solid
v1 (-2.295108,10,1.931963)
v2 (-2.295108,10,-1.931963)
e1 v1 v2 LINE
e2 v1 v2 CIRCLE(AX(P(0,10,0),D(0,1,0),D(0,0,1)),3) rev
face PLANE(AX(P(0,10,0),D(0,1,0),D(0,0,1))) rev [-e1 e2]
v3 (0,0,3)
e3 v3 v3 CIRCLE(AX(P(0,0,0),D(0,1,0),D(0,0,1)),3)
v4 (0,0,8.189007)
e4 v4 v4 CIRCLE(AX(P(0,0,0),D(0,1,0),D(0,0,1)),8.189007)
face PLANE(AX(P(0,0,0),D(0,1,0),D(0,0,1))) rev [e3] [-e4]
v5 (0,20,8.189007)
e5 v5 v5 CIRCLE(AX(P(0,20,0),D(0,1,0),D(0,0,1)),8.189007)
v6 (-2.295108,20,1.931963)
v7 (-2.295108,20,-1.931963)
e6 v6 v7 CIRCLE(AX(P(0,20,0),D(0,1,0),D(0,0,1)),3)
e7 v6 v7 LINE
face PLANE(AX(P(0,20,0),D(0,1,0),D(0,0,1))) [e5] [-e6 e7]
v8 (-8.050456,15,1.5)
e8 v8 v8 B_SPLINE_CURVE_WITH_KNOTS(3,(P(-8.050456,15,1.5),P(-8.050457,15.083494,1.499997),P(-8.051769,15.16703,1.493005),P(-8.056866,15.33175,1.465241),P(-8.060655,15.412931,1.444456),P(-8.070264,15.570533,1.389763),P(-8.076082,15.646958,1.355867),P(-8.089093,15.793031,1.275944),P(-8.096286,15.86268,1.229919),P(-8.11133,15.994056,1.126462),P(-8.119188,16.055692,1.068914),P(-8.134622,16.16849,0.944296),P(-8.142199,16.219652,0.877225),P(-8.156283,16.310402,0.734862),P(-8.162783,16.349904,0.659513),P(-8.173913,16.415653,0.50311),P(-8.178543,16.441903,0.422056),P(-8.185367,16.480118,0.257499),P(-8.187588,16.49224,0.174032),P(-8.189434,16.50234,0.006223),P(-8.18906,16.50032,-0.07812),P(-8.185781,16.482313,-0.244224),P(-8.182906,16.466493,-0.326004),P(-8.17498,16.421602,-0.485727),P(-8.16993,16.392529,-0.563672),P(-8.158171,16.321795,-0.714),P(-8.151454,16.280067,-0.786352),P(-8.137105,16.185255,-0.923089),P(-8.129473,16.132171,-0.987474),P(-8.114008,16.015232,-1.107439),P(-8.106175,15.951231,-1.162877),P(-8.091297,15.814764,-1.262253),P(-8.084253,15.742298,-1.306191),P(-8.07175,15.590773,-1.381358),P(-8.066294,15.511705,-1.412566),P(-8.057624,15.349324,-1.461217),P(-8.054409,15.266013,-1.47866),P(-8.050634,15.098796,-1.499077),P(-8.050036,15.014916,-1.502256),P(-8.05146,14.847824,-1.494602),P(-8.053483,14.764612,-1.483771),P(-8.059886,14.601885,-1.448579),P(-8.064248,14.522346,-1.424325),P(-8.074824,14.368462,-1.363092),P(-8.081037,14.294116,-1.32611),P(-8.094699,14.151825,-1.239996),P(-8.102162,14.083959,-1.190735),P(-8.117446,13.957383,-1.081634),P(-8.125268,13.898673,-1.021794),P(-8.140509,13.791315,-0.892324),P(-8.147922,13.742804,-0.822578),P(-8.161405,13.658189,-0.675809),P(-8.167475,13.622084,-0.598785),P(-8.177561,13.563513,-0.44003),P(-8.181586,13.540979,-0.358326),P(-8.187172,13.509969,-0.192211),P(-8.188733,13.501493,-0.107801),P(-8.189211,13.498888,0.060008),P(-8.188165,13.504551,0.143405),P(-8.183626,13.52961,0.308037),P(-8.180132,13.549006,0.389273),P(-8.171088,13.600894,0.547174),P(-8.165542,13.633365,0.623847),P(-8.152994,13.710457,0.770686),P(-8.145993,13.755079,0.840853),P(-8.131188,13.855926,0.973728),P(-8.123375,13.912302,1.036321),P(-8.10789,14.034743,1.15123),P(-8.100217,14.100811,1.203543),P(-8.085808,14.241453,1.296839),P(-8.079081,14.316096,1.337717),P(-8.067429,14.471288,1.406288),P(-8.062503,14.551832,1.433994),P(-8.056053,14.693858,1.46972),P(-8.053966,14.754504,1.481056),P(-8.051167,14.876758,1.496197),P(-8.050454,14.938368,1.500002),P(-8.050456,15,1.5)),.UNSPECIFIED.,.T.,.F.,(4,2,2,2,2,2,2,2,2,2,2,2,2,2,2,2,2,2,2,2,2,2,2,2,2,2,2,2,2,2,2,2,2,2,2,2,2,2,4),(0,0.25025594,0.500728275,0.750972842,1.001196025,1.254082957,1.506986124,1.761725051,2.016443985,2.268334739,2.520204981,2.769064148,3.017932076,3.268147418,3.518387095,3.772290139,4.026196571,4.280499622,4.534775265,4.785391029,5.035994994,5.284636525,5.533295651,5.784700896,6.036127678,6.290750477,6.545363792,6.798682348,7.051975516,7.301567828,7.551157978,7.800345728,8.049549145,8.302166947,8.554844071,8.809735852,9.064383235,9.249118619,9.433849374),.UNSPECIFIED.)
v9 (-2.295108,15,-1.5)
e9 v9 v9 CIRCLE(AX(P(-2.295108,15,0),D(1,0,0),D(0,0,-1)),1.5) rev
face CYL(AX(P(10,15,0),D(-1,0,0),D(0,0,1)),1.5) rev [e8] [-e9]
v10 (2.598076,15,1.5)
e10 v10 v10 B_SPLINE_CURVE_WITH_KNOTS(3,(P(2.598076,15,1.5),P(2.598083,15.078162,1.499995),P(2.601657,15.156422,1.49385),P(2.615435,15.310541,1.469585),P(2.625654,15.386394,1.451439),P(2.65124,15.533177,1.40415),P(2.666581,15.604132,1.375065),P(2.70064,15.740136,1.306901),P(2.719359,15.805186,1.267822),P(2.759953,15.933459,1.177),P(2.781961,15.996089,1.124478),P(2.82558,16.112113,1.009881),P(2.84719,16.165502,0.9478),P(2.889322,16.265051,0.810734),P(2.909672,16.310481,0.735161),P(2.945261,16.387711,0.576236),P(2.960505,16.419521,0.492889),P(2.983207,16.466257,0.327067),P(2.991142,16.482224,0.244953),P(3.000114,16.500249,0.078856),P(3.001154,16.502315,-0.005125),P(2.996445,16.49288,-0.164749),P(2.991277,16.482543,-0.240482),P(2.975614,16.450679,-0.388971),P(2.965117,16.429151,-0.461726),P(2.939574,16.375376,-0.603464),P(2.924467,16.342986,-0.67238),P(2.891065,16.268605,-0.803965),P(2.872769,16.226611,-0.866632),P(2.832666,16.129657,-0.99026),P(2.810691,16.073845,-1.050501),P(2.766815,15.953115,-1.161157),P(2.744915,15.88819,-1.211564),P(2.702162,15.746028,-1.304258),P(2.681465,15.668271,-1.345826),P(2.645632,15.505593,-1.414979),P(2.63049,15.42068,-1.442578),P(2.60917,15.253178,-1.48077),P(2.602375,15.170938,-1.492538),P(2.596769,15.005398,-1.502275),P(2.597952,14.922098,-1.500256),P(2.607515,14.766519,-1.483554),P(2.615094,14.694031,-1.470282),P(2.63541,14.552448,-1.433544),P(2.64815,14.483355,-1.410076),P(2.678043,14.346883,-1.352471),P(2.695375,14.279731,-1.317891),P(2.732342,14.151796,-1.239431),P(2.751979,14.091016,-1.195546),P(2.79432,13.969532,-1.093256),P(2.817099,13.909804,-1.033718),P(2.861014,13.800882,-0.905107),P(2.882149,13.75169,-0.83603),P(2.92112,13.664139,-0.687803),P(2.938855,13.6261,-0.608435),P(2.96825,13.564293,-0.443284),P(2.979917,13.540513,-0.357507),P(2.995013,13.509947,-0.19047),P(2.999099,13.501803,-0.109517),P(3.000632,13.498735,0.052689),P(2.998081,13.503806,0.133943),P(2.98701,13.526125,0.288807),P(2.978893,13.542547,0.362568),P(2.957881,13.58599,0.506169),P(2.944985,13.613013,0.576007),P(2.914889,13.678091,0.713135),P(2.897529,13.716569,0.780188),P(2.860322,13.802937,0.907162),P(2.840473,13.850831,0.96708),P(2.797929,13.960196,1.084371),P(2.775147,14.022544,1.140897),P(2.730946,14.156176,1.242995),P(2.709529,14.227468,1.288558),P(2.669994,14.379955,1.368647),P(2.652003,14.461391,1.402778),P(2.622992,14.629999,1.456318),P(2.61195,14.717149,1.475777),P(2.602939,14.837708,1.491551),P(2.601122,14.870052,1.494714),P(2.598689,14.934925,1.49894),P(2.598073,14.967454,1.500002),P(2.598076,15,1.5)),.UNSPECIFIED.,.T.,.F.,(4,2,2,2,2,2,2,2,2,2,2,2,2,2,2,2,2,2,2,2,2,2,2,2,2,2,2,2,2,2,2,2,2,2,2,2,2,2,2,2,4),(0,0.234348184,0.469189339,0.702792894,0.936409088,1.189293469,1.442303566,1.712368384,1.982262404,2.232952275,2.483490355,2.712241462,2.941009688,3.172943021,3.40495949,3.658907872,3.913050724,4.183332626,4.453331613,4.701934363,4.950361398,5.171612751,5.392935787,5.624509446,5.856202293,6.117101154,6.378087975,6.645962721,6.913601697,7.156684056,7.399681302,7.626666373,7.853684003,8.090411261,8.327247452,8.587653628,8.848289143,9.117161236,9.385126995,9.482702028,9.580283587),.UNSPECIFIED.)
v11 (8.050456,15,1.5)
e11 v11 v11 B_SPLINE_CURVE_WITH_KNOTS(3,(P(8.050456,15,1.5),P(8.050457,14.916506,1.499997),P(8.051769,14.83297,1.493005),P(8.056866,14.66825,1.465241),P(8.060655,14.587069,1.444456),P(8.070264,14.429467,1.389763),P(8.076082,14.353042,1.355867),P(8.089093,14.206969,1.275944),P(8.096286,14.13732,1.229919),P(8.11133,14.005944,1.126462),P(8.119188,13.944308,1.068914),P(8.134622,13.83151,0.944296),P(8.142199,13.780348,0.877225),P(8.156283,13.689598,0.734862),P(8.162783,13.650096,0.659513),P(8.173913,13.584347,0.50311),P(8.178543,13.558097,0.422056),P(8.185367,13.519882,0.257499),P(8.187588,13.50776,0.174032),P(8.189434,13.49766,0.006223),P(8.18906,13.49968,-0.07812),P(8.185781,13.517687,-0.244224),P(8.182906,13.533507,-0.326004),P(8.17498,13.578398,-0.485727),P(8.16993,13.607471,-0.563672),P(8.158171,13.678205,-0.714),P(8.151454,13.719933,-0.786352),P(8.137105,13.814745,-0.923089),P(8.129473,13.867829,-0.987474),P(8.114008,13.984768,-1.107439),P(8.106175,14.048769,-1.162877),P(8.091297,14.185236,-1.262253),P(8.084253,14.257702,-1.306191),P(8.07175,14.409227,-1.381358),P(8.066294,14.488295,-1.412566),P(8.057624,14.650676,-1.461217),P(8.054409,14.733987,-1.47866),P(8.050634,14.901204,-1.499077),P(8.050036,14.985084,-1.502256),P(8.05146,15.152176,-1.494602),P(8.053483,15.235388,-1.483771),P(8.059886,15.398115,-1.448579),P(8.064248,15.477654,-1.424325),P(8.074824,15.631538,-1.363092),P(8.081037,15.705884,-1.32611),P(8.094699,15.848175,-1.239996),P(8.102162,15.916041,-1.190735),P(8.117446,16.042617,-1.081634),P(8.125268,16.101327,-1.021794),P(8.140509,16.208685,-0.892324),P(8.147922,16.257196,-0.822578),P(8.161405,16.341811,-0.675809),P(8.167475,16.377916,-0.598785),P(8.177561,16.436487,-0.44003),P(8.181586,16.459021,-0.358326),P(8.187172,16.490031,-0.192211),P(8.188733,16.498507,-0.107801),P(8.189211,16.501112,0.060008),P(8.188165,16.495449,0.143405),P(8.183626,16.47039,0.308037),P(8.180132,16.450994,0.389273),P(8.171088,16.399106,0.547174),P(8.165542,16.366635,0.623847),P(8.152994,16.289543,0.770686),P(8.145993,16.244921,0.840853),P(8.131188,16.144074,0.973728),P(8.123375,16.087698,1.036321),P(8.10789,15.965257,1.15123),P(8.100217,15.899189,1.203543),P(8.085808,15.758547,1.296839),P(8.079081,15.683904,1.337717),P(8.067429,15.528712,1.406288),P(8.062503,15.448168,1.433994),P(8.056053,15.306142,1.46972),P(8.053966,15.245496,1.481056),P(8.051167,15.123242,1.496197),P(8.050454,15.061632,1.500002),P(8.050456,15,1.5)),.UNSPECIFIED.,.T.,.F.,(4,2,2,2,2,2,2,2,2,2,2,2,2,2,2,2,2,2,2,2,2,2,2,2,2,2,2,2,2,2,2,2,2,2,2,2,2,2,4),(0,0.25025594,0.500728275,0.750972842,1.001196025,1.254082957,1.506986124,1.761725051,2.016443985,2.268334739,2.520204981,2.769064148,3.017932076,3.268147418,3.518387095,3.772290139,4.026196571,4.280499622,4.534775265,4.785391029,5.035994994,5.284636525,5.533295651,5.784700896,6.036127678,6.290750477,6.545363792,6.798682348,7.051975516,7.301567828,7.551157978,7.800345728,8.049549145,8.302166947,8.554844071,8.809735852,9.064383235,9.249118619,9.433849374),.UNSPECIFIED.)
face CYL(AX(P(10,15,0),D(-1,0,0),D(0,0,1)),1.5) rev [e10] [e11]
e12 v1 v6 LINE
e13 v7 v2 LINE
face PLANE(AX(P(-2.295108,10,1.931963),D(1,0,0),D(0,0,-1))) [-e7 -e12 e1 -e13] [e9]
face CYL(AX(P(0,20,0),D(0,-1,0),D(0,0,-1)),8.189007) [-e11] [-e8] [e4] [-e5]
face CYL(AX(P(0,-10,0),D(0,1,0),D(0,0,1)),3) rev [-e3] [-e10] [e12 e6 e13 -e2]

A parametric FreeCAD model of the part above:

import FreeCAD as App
import Part
import Sketcher

V = App.Vector
Q = App.Units.Quantity


def add_polygon(sketch, points):
    """Adds a closed chain of lines whose ends are joined by coincident constraints."""
    first, n = sketch.GeometryCount, len(points)
    for a, b in zip(points, points[1:] + points[:1]):
        sketch.addGeometry(Part.LineSegment(App.Vector(*a, 0), App.Vector(*b, 0)), False)
    for i in range(n):
        sketch.addConstraint(Sketcher.Constraint("Coincident", first + i, 2, first + (i + 1) % n, 1))

doc = App.newDocument("Part")
body = doc.addObject("PartDesign::Body", "Body")

# Sketch on XZ plane
sketch1 = body.newObject("Sketcher::SketchObject", "Sketch")
sketch1.AttachmentSupport = (doc.getObject("XZ_Plane"), [""])
sketch1.MapMode = "FlatFace"
sketch1.addGeometry(Part.Circle(V(0, 0, 0), V(0, 0, 1), 8.189007), False)
sketch1.addConstraint(Sketcher.Constraint("Coincident", 0, 3, -1, 1))
sketch1.addConstraint(Sketcher.Constraint("Diameter", 0, Q("16.378014 mm")))
pad1 = body.newObject("PartDesign::Pad", "Pad")
pad1.Profile = sketch1
pad1.Length = 20
pad1.Reversed = True

# Sketch on XZ plane
sketch2 = body.newObject("Sketcher::SketchObject", "Sketch001")
sketch2.AttachmentSupport = (doc.getObject("XZ_Plane"), [""])
sketch2.MapMode = "FlatFace"
sketch2.AttachmentOffset = App.Placement(V(0, 0, -20), App.Rotation())
sketch2.addGeometry(Part.Circle(V(0, 0, 0), V(0, 0, 1), 3), False)
sketch2.addConstraint(Sketcher.Constraint("Coincident", 0, 3, -1, 1))
sketch2.addConstraint(Sketcher.Constraint("Diameter", 0, Q("6 mm")))
pocket1 = body.newObject("PartDesign::Pocket", "Pocket")
pocket1.Profile = sketch2
pocket1.Length = 30
pocket1.Reversed = True

# Sketch on XZ plane
sketch3 = body.newObject("Sketcher::SketchObject", "Sketch002")
sketch3.AttachmentSupport = (doc.getObject("XZ_Plane"), [""])
sketch3.MapMode = "FlatFace"
sketch3.AttachmentOffset = App.Placement(V(0, 0, -20), App.Rotation())
add_polygon(sketch3, [(-4.13432, -2.25869), (-4.13432, 1.931963), (-2.295108, 1.931963), (-2.295108, -2.25869)])  # lines 0-3
sketch3.addConstraint(Sketcher.Constraint("Vertical", 0))
sketch3.addConstraint(Sketcher.Constraint("Horizontal", 1))
sketch3.addConstraint(Sketcher.Constraint("Vertical", 2))
sketch3.addConstraint(Sketcher.Constraint("Horizontal", 3))
sketch3.addConstraint(Sketcher.Constraint("DistanceX", 1, 1, 1, 2, Q("1.839213 mm")))
sketch3.addConstraint(Sketcher.Constraint("DistanceY", 0, 1, 0, 2, Q("4.190653 mm")))
sketch3.addConstraint(Sketcher.Constraint("DistanceX", 0, 2, -1, 1, Q("4.13432 mm")))
sketch3.addConstraint(Sketcher.Constraint("DistanceY", 2, 2, -1, 1, Q("2.25869 mm")))
pad2 = body.newObject("PartDesign::Pad", "Pad001")
pad2.Profile = sketch3
pad2.Length = 10

# Sketch on YZ plane
sketch4 = body.newObject("Sketcher::SketchObject", "Sketch003")
sketch4.AttachmentSupport = (doc.getObject("YZ_Plane"), [""])
sketch4.MapMode = "FlatFace"
sketch4.addGeometry(Part.Circle(V(15, 0, 0), V(0, 0, 1), 1.5), False)
sketch4.addConstraint(Sketcher.Constraint("PointOnObject", 0, 3, -1))
sketch4.addConstraint(Sketcher.Constraint("Diameter", 0, Q("3 mm")))
sketch4.addConstraint(Sketcher.Constraint("DistanceX", -1, 1, 0, 3, Q("15 mm")))
pocket2 = body.newObject("PartDesign::Pocket", "Pocket001")
pocket2.Profile = sketch4
pocket2.Type = "ThroughAll"
pocket2.Midplane = True

doc.recompute()
